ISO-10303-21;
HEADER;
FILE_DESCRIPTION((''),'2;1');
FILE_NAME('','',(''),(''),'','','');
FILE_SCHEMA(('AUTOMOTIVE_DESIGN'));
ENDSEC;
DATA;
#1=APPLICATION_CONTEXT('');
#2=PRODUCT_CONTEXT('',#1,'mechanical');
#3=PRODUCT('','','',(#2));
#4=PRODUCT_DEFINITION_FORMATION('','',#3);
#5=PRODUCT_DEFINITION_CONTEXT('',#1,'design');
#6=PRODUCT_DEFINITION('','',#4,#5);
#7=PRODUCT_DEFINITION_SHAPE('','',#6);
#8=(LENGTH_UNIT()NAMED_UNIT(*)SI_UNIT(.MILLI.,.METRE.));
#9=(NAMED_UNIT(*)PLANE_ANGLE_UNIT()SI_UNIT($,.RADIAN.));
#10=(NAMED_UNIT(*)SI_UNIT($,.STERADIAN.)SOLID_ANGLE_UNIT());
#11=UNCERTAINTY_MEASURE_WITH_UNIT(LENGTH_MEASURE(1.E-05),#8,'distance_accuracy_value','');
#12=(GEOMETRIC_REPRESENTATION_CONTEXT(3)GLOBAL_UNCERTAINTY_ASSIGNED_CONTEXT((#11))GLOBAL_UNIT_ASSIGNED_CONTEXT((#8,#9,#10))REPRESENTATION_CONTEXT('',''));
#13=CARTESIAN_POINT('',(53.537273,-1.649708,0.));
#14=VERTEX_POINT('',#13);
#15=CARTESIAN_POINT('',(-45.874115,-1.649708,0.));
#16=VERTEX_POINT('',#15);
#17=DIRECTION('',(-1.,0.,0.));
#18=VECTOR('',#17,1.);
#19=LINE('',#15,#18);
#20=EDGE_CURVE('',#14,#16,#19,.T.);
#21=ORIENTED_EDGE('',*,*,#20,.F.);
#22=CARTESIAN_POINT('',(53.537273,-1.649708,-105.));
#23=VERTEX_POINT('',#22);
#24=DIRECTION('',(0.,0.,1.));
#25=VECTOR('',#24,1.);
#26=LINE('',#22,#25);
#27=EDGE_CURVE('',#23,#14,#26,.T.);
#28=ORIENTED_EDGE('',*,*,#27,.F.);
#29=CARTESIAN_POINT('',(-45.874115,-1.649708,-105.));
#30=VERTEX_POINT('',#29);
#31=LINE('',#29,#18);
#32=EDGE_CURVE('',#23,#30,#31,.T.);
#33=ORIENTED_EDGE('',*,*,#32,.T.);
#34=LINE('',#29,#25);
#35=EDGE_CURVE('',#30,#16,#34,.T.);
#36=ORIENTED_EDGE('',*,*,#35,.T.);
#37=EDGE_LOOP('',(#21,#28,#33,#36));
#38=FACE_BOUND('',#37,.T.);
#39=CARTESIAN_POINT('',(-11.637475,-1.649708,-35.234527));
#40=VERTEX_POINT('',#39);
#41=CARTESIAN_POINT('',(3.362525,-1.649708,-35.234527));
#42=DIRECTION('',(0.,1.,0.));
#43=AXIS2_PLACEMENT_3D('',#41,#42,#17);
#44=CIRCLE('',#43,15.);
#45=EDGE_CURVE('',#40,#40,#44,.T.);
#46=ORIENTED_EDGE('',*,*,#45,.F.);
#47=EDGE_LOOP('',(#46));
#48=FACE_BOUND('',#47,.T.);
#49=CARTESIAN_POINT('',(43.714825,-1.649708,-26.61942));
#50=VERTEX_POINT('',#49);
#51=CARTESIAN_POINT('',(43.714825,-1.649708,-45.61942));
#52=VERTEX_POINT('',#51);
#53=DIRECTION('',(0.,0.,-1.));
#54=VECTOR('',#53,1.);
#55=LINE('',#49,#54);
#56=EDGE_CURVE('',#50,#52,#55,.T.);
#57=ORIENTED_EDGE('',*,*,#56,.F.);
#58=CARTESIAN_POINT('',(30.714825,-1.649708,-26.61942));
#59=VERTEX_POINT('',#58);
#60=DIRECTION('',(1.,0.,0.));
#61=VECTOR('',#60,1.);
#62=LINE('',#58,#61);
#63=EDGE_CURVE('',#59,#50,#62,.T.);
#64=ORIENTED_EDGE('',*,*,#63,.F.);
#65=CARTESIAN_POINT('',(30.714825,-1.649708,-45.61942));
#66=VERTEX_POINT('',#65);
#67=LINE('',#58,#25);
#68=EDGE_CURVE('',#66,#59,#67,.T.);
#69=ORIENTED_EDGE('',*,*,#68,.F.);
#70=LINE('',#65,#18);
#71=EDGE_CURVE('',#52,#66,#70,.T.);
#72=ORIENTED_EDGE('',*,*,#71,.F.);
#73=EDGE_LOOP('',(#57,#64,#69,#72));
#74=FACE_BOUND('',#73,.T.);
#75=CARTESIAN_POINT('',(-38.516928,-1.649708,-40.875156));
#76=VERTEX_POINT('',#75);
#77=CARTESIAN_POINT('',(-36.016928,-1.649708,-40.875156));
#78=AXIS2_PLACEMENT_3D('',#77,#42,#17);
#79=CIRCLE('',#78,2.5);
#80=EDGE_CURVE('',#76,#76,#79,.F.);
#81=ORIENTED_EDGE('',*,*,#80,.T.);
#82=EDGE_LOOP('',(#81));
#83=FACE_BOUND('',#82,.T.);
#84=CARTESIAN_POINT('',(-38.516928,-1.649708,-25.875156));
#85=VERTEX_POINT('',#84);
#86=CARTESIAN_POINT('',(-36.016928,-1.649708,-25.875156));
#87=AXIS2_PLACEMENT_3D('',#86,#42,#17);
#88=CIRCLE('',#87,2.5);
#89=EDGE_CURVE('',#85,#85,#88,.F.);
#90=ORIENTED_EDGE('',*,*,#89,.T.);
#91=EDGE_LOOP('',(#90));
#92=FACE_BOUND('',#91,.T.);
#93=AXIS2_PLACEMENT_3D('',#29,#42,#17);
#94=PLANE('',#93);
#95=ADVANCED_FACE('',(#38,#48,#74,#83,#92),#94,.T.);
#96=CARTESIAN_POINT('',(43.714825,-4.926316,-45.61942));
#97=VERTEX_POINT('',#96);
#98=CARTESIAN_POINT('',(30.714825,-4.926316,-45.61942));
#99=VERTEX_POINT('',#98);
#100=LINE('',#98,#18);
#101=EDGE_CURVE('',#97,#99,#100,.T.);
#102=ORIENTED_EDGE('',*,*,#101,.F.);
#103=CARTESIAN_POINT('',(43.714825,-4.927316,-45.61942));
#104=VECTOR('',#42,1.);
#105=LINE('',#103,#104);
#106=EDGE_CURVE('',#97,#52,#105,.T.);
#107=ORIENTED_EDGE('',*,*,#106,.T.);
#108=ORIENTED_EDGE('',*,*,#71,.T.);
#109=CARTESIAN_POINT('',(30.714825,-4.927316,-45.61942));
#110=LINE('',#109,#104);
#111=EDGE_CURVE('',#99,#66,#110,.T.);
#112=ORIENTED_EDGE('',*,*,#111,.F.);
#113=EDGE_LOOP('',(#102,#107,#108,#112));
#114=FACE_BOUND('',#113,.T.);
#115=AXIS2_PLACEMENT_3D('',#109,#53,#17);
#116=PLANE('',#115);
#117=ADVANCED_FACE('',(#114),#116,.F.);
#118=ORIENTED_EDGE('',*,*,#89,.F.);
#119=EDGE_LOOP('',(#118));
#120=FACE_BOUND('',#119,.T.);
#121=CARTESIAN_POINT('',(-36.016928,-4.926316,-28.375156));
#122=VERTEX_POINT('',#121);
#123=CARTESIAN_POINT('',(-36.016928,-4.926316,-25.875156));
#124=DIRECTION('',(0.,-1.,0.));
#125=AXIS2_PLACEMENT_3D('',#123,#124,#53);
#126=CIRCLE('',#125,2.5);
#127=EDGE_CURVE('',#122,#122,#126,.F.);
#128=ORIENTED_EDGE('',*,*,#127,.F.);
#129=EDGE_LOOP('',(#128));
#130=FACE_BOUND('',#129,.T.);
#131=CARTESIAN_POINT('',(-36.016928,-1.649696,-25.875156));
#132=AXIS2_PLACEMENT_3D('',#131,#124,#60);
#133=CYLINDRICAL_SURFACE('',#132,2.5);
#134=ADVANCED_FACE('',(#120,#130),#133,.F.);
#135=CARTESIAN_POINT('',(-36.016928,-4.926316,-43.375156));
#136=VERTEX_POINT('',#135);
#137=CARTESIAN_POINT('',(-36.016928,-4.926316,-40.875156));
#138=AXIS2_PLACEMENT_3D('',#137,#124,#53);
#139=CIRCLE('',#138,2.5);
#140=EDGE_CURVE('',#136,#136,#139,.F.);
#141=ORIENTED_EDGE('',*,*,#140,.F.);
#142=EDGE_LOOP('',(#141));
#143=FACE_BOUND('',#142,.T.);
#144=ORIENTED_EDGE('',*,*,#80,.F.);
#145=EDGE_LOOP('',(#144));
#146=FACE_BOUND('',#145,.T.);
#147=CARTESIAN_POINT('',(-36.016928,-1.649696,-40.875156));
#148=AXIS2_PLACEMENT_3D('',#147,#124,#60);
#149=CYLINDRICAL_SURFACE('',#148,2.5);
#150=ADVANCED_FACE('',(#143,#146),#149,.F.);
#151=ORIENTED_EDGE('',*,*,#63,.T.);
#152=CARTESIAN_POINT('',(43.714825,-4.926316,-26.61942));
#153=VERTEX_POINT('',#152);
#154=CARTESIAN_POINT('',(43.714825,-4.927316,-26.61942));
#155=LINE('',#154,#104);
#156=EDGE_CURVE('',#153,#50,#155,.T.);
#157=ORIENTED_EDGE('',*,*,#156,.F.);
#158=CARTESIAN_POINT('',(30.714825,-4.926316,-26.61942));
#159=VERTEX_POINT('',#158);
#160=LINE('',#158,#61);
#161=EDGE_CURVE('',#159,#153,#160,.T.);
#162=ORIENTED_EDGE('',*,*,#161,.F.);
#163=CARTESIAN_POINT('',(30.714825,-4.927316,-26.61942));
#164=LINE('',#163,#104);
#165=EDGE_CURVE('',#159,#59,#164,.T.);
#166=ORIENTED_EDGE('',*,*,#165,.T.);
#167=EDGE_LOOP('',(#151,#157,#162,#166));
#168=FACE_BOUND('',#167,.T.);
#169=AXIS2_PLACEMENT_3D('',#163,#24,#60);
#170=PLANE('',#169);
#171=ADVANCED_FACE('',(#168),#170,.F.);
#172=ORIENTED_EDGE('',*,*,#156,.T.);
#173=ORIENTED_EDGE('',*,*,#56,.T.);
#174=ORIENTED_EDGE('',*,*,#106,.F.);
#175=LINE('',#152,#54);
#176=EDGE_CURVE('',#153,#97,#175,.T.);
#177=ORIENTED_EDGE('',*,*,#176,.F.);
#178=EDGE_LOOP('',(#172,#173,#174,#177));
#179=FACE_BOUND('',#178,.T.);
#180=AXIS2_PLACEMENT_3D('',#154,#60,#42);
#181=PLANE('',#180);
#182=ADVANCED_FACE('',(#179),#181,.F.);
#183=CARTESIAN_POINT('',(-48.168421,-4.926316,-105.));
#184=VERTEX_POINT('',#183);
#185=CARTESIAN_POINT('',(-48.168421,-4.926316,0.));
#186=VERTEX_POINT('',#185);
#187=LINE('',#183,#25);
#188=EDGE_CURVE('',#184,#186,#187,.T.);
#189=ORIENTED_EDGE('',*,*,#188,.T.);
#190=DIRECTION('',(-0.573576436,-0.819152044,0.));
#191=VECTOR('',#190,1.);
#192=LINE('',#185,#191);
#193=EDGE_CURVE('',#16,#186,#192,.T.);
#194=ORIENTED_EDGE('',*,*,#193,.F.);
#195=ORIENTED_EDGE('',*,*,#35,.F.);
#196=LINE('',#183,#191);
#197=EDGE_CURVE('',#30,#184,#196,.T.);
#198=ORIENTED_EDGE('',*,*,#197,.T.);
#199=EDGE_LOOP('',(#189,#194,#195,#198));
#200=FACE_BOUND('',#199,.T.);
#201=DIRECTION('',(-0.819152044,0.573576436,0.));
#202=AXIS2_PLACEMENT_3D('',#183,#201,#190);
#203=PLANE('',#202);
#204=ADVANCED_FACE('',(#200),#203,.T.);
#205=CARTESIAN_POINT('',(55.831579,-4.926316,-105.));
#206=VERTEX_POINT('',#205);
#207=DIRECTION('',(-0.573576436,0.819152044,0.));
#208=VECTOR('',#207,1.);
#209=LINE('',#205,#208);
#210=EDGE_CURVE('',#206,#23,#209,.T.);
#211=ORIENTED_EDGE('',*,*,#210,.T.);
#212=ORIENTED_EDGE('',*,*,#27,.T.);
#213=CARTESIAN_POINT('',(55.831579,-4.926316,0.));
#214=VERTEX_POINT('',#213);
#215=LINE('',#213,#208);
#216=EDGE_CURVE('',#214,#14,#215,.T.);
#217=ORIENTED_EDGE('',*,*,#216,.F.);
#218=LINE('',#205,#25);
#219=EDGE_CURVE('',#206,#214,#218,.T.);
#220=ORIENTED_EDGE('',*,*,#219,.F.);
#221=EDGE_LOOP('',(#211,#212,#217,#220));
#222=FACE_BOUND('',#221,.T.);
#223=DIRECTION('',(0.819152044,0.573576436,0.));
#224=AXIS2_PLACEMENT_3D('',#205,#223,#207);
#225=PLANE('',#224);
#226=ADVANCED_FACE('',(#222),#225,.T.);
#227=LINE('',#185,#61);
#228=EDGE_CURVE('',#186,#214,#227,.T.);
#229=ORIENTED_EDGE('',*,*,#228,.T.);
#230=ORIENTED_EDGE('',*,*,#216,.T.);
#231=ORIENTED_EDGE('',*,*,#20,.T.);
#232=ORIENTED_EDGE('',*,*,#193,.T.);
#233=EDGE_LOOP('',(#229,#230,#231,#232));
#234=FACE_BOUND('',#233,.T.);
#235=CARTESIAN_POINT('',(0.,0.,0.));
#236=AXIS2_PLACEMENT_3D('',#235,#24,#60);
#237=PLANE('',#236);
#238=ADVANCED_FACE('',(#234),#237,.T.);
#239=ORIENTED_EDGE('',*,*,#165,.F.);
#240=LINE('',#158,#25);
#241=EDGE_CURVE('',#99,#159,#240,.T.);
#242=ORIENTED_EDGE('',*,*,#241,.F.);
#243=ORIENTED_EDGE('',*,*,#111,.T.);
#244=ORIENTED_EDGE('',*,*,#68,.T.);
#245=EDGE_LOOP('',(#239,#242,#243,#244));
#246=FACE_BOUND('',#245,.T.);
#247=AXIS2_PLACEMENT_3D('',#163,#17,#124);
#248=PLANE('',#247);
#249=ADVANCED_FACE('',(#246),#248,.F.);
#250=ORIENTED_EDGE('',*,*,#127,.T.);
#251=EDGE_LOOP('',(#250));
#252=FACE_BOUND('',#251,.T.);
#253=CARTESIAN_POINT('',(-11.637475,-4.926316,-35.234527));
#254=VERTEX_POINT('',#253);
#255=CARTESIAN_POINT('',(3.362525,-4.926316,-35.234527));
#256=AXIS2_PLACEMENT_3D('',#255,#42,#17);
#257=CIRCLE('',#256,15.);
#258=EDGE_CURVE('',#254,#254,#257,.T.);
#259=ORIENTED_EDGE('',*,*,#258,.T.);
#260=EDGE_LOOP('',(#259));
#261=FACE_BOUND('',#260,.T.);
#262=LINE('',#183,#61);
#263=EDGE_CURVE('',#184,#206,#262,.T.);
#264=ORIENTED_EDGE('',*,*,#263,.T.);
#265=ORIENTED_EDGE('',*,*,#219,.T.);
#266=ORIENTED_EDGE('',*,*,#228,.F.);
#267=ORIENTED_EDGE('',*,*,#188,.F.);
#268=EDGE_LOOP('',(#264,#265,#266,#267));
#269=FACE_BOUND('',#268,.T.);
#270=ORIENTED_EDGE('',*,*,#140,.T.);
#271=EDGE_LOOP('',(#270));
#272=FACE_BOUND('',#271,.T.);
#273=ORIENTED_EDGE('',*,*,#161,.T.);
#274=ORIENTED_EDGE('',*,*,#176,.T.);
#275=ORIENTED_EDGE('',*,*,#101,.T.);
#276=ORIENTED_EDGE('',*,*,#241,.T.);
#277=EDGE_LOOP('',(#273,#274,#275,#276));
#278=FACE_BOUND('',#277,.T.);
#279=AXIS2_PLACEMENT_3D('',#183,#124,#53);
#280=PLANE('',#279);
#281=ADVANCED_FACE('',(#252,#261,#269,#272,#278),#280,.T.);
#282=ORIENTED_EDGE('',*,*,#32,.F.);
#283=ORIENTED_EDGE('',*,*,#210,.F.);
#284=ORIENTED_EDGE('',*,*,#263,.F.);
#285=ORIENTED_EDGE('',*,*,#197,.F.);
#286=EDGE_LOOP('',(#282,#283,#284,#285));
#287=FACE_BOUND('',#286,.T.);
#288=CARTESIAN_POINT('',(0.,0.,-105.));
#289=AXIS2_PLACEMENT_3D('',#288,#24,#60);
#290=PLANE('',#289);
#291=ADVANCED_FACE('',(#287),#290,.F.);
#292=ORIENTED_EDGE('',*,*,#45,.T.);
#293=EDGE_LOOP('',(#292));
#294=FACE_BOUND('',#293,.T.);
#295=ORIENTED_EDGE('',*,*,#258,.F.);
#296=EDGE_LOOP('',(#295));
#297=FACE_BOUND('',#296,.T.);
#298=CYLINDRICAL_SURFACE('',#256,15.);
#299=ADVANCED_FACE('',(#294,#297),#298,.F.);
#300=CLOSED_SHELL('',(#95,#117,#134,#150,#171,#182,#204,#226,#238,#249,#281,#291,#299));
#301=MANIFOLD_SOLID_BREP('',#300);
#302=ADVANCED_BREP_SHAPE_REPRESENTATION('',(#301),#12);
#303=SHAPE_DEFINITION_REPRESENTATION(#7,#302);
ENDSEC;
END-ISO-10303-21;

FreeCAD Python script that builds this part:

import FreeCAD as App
import Part
import Sketcher
Q = App.Units.Quantity

doc = App.newDocument("Part")
params = doc.addObject("Spreadsheet::Sheet", "Params")
for row, (alias, value) in enumerate([
    ("sketch1_width", "104 mm"),
    ("sketch1_length", "4 mm"),
    ("pad1_length", "105 mm"),
    ("sketch2_diameter", "30 mm"),
    ("sketch3_diameter", "5 mm"),
    ("sketch4_diameter", "5 mm"),
    ("sketch5_diameter", "5 mm"),
    ("pocket4_length", "1 mm"),
    ("sketch6_width", "13 mm"),
    ("sketch6_height", "19 mm"),
], start=1):
    params.set(f"A{row}", alias)
    params.set(f"B{row}", "=" + value)
    params.setAlias(f"B{row}", alias)

body = doc.addObject("PartDesign::Body", "Body")

sketch1 = doc.addObject("Sketcher::SketchObject", "Sketch")
body.addObject(sketch1)
sketch1.AttachmentSupport = (doc.XY_Plane, [""])
sketch1.MapMode = "FlatFace"
sketch1.addGeometry([
    Part.LineSegment(App.Vector(-48.2, -4.9, 0), App.Vector(55.8, -4.9, 0)),
    Part.LineSegment(App.Vector(55.8, -4.9, 0), App.Vector(53.5, -1.6, 0)),
    Part.LineSegment(App.Vector(53.5, -1.6, 0), App.Vector(-45.9, -1.6, 0)),
    Part.LineSegment(App.Vector(-45.9, -1.6, 0), App.Vector(-48.2, -4.9, 0)),
], False)
sketch1.addConstraint([
    Sketcher.Constraint("Coincident", 0, 2, 1, 1),
    Sketcher.Constraint("Coincident", 1, 2, 2, 1),
    Sketcher.Constraint("Coincident", 2, 2, 3, 1),
    Sketcher.Constraint("Coincident", 3, 2, 0, 1),
    Sketcher.Constraint("Horizontal", 0),
    Sketcher.Constraint("Horizontal", 2),
    Sketcher.Constraint("Equal", 1, 3),
    Sketcher.Constraint("DistanceX", 0, 1, 0, 2, Q("104 mm")),
    Sketcher.Constraint("Angle", 1, Q("125 deg")),
    Sketcher.Constraint("Distance", 1, Q("4 mm")),
    Sketcher.Constraint("DistanceX", -1, 1, 0, 2, Q("55.831579 mm")),
    Sketcher.Constraint("DistanceY", 0, 2, -1, 1, Q("4.926316 mm")),
])
sketch1.setExpression("Constraints[7]", "Params.sketch1_width")
sketch1.setExpression("Constraints[9]", "Params.sketch1_length")
pad1 = doc.addObject("PartDesign::Pad", "Pad")
body.addObject(pad1)
pad1.Profile = sketch1
pad1.setExpression("Length", "Params.pad1_length")
pad1.Reversed = True

sketch2 = doc.addObject("Sketcher::SketchObject", "Sketch001")
body.addObject(sketch2)
sketch2.AttachmentSupport = (doc.XZ_Plane, [""])
sketch2.MapMode = "FlatFace"
sketch2.AttachmentOffset = App.Placement(App.Vector(0, 0, 1.649708), App.Rotation())
sketch2.addGeometry(Part.Circle(App.Vector(3, -35, 0), App.Vector(0, 0, 1), 15), False)
sketch2.addConstraint([
    Sketcher.Constraint("Diameter", 0, Q("30 mm")),
    Sketcher.Constraint("DistanceX", -1, 1, 0, 3, Q("3.362525 mm")),
    Sketcher.Constraint("DistanceY", 0, 3, -1, 1, Q("35.234527 mm")),
])
sketch2.setExpression("Constraints[0]", "Params.sketch2_diameter")
pocket1 = doc.addObject("PartDesign::Pocket", "Pocket")
body.addObject(pocket1)
pocket1.Profile = sketch2
pocket1.Type = "ThroughAll"
pocket1.Midplane = True

sketch3 = doc.addObject("Sketcher::SketchObject", "Sketch002")
body.addObject(sketch3)
sketch3.AttachmentSupport = (doc.XZ_Plane, [""])
sketch3.MapMode = "FlatFace"
sketch3.AttachmentOffset = App.Placement(App.Vector(0, 0, 1.649708), App.Rotation())
sketch3.addGeometry(Part.Circle(App.Vector(-36, -25.9, 0), App.Vector(0, 0, 1), 2.5), False)
sketch3.addConstraint([
    Sketcher.Constraint("Diameter", 0, Q("5 mm")),
    Sketcher.Constraint("DistanceX", 0, 3, -1, 1, Q("36.016928 mm")),
    Sketcher.Constraint("DistanceY", 0, 3, -1, 1, Q("25.875156 mm")),
])
sketch3.setExpression("Constraints[0]", "Params.sketch3_diameter")
pocket2 = doc.addObject("PartDesign::Pocket", "Pocket001")
body.addObject(pocket2)
pocket2.Profile = sketch3
pocket2.Type = "UpToFirst"
pocket2.Reversed = True

sketch4 = doc.addObject("Sketcher::SketchObject", "Sketch003")
body.addObject(sketch4)
sketch4.AttachmentSupport = (doc.XZ_Plane, [""])
sketch4.MapMode = "FlatFace"
sketch4.AttachmentOffset = App.Placement(App.Vector(0, 0, 1.649708), App.Rotation())
sketch4.addGeometry(Part.Circle(App.Vector(-36, -40.9, 0), App.Vector(0, 0, 1), 2.5), False)
sketch4.addConstraint([
    Sketcher.Constraint("Diameter", 0, Q("5 mm")),
    Sketcher.Constraint("DistanceX", 0, 3, -1, 1, Q("36.016928 mm")),
    Sketcher.Constraint("DistanceY", 0, 3, -1, 1, Q("40.875156 mm")),
])
sketch4.setExpression("Constraints[0]", "Params.sketch4_diameter")
pocket3 = doc.addObject("PartDesign::Pocket", "Pocket002")
body.addObject(pocket3)
pocket3.Profile = sketch4
pocket3.Type = "UpToFirst"
pocket3.Reversed = True

sketch5 = doc.addObject("Sketcher::SketchObject", "Sketch004")
body.addObject(sketch5)
sketch5.AttachmentSupport = (doc.XZ_Plane, [""])
sketch5.MapMode = "FlatFace"
sketch5.AttachmentOffset = App.Placement(App.Vector(0, 0, 1.649708), App.Rotation())
sketch5.addGeometry([
    Part.Circle(App.Vector(-36, -25.9, 0), App.Vector(0, 0, 1), 2.5),
    Part.Circle(App.Vector(-36, -40.9, 0), App.Vector(0, 0, 1), 2.5),
], False)
sketch5.addConstraint([
    Sketcher.Constraint("Equal", 0, 1),
    Sketcher.Constraint("Vertical", 0, 3, 1, 3),
    Sketcher.Constraint("Diameter", 0, Q("5 mm")),
    Sketcher.Constraint("DistanceY", 1, 3, 0, 3, Q("15 mm")),
    Sketcher.Constraint("DistanceX", 0, 3, -1, 1, Q("36.016928 mm")),
    Sketcher.Constraint("DistanceY", 0, 3, -1, 1, Q("25.875156 mm")),
])
sketch5.setExpression("Constraints[2]", "Params.sketch5_diameter")
pocket4 = doc.addObject("PartDesign::Pocket", "Pocket003")
body.addObject(pocket4)
pocket4.Profile = sketch5
pocket4.setExpression("Length", "Params.pocket4_length")

sketch6 = doc.addObject("Sketcher::SketchObject", "Sketch005")
body.addObject(sketch6)
sketch6.AttachmentSupport = (doc.XZ_Plane, [""])
sketch6.MapMode = "FlatFace"
sketch6.AttachmentOffset = App.Placement(App.Vector(0, 0, 1.649708), App.Rotation())
sketch6.addGeometry([
    Part.LineSegment(App.Vector(31, -46, 0), App.Vector(31, -27, 0)),
    Part.LineSegment(App.Vector(31, -27, 0), App.Vector(44, -27, 0)),
    Part.LineSegment(App.Vector(44, -27, 0), App.Vector(44, -46, 0)),
    Part.LineSegment(App.Vector(44, -46, 0), App.Vector(31, -46, 0)),
], False)
sketch6.addConstraint([
    Sketcher.Constraint("Coincident", 0, 2, 1, 1),
    Sketcher.Constraint("Coincident", 1, 2, 2, 1),
    Sketcher.Constraint("Coincident", 2, 2, 3, 1),
    Sketcher.Constraint("Coincident", 3, 2, 0, 1),
    Sketcher.Constraint("Vertical", 0),
    Sketcher.Constraint("Horizontal", 1),
    Sketcher.Constraint("Vertical", 2),
    Sketcher.Constraint("Horizontal", 3),
    Sketcher.Constraint("DistanceX", 1, 1, 1, 2, Q("13 mm")),
    Sketcher.Constraint("DistanceY", 0, 1, 0, 2, Q("19 mm")),
    Sketcher.Constraint("DistanceY", 0, 2, -1, 1, Q("26.61942 mm")),
    Sketcher.Constraint("DistanceX", -1, 1, 0, 2, Q("30.714825 mm")),
])
sketch6.setExpression("Constraints[8]", "Params.sketch6_width")
sketch6.setExpression("Constraints[9]", "Params.sketch6_height")
pocket5 = doc.addObject("PartDesign::Pocket", "Pocket004")
body.addObject(pocket5)
pocket5.Profile = sketch6
pocket5.Type = "UpToFirst"
pocket5.Reversed = True

doc.recompute()
